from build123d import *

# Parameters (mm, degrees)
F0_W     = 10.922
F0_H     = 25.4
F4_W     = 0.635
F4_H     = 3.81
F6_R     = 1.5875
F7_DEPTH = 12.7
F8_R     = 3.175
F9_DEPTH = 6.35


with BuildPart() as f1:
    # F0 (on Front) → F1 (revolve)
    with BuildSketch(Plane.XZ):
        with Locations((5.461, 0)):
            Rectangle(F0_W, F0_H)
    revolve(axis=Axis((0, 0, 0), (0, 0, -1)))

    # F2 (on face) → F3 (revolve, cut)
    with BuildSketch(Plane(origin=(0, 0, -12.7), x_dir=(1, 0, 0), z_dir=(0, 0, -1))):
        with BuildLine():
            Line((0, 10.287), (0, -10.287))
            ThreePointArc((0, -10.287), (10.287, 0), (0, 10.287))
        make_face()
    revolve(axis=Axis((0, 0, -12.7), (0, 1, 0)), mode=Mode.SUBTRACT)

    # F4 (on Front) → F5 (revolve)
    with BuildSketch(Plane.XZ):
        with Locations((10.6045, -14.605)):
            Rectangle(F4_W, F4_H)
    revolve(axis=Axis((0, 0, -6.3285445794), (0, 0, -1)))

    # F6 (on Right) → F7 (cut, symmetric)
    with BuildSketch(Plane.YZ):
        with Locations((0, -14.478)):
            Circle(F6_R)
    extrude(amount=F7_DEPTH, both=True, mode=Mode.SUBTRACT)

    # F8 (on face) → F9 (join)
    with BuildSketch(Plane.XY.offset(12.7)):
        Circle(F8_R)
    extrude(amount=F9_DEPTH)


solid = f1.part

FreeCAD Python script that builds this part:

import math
import FreeCAD as App
import Part
import Sketcher

V = App.Vector
Q = App.Units.Quantity

doc = App.newDocument("Part")
params = doc.addObject("Spreadsheet::Sheet", "Params")
for row, (alias, value) in enumerate([
    ("sketch1_height", "1 in"),
    ("sketch1_width", "0.43 in"),
    ("revolution_angle", "360 deg"),
    ("sketch2_radius", "0.405 in"),
    ("groove_angle", "360 deg"),
    ("sketch3_height", "0.15 in"),
    ("sketch3_width", "0.025 in"),
    ("revolution2_angle", "360 deg"),
    ("sketch4_diameter", "0.125 in"),
    ("pocket1_length", "1 in"),
    ("sketch5_diameter", "0.25 in"),
    ("pad1_length", "0.25 in"),
], start=1):
    params.set(f"A{row}", alias)
    params.set(f"B{row}", "=" + value)
    params.setAlias(f"B{row}", alias)

body = doc.addObject("PartDesign::Body", "Body")

# Sketch on XZ plane
sketch1 = body.newObject("Sketcher::SketchObject", "Sketch")
sketch1.AttachmentSupport = (doc.getObject("XZ_Plane"), [""])
sketch1.MapMode = "FlatFace"
sketch1.addGeometry(Part.LineSegment(V(0, 13, 0), V(0, -13, 0)), False)
sketch1.addGeometry(Part.LineSegment(V(0, -13, 0), V(11, -13, 0)), False)
sketch1.addGeometry(Part.LineSegment(V(11, -13, 0), V(11, 13, 0)), False)
sketch1.addGeometry(Part.LineSegment(V(11, 13, 0), V(0, 13, 0)), False)
sketch1.addConstraint(Sketcher.Constraint("Coincident", 0, 2, 1, 1))
sketch1.addConstraint(Sketcher.Constraint("Coincident", 1, 2, 2, 1))
sketch1.addConstraint(Sketcher.Constraint("Coincident", 2, 2, 3, 1))
sketch1.addConstraint(Sketcher.Constraint("Coincident", 3, 2, 0, 1))
sketch1.addConstraint(Sketcher.Constraint("Vertical", 0))
sketch1.addConstraint(Sketcher.Constraint("Horizontal", 1))
sketch1.addConstraint(Sketcher.Constraint("Vertical", 2))
sketch1.addConstraint(Sketcher.Constraint("Horizontal", 3))
sketch1.addConstraint(Sketcher.Constraint("Symmetric", 0, 2, 3, 2, -1, 1))
sketch1.addConstraint(Sketcher.Constraint("DistanceY", 0, 2, 0, 1, Q("1 in")))
sketch1.addConstraint(Sketcher.Constraint("DistanceX", 1, 1, 1, 2, Q("0.43 in")))
sketch1.setExpression("Constraints[9]", "Params.sketch1_height")
sketch1.setExpression("Constraints[10]", "Params.sketch1_width")
revolution = body.newObject("PartDesign::Revolution", "Revolution")
revolution.Profile = sketch1
revolution.ReferenceAxis = (sketch1, ["V_Axis"])
revolution.setExpression("Angle", "Params.revolution_angle")

# Sketch on XY plane
sketch2 = body.newObject("Sketcher::SketchObject", "Sketch001")
sketch2.AttachmentSupport = (doc.getObject("XY_Plane"), [""])
sketch2.MapMode = "FlatFace"
sketch2.AttachmentOffset = App.Placement(V(0, 0, -0.5 * 25.4), App.Rotation())
sketch2.addGeometry(Part.LineSegment(V(0, -10, 0), V(0, 10, 0)), False)
sketch2.addGeometry(Part.ArcOfCircle(Part.Circle(V(0, 0, 0), V(0, 0, 1), 10), math.radians(-90), math.radians(90)), False)
sketch2.addConstraint(Sketcher.Constraint("Coincident", 0, 1, 1, 1))
sketch2.addConstraint(Sketcher.Constraint("Coincident", 1, 2, 0, 2))
sketch2.addConstraint(Sketcher.Constraint("Vertical", 0))
sketch2.addConstraint(Sketcher.Constraint("Coincident", 1, 3, -1, 1))
sketch2.addConstraint(Sketcher.Constraint("PointOnObject", 0, 1, -2))
sketch2.addConstraint(Sketcher.Constraint("Radius", 1, Q("0.405 in")))
sketch2.setExpression("Constraints[5]", "Params.sketch2_radius")
groove = body.newObject("PartDesign::Groove", "Groove")
groove.Profile = sketch2
groove.ReferenceAxis = (sketch2, ["V_Axis"])
groove.setExpression("Angle", "Params.groove_angle")

# Sketch on XZ plane
sketch3 = body.newObject("Sketcher::SketchObject", "Sketch002")
sketch3.AttachmentSupport = (doc.getObject("XZ_Plane"), [""])
sketch3.MapMode = "FlatFace"
sketch3.addGeometry(Part.LineSegment(V(10.3, -12.7, 0), V(10.3, -16.5, 0)), False)
sketch3.addGeometry(Part.LineSegment(V(10.3, -16.5, 0), V(10.9, -16.5, 0)), False)
sketch3.addGeometry(Part.LineSegment(V(10.9, -16.5, 0), V(10.9, -12.7, 0)), False)
sketch3.addGeometry(Part.LineSegment(V(10.9, -12.7, 0), V(10.3, -12.7, 0)), False)
sketch3.addConstraint(Sketcher.Constraint("Coincident", 0, 2, 1, 1))
sketch3.addConstraint(Sketcher.Constraint("Coincident", 1, 2, 2, 1))
sketch3.addConstraint(Sketcher.Constraint("Coincident", 2, 2, 3, 1))
sketch3.addConstraint(Sketcher.Constraint("Coincident", 3, 2, 0, 1))
sketch3.addConstraint(Sketcher.Constraint("Vertical", 0))
sketch3.addConstraint(Sketcher.Constraint("Horizontal", 1))
sketch3.addConstraint(Sketcher.Constraint("Vertical", 2))
sketch3.addConstraint(Sketcher.Constraint("Horizontal", 3))
sketch3.addConstraint(Sketcher.Constraint("DistanceY", 0, 2, 0, 1, Q("0.15 in")))
sketch3.addConstraint(Sketcher.Constraint("DistanceY", 2, 2, -1, 1, Q("0.5 in")))
sketch3.addConstraint(Sketcher.Constraint("DistanceX", 1, 1, 1, 2, Q("0.025 in")))
sketch3.addConstraint(Sketcher.Constraint("DistanceX", -1, 1, 1, 2, Q("0.43 in")))
sketch3.setExpression("Constraints[8]", "Params.sketch3_height")
sketch3.setExpression("Constraints[10]", "Params.sketch3_width")
revolution2 = body.newObject("PartDesign::Revolution", "Revolution001")
revolution2.Profile = sketch3
revolution2.ReferenceAxis = (sketch3, ["V_Axis"])
revolution2.setExpression("Angle", "Params.revolution2_angle")

# Sketch on YZ plane
sketch4 = body.newObject("Sketcher::SketchObject", "Sketch003")
sketch4.AttachmentSupport = (doc.getObject("YZ_Plane"), [""])
sketch4.MapMode = "FlatFace"
sketch4.addGeometry(Part.Circle(V(0, -14.5, 0), V(0, 0, 1), 1.6), False)
sketch4.addConstraint(Sketcher.Constraint("PointOnObject", 0, 3, -2))
sketch4.addConstraint(Sketcher.Constraint("Diameter", 0, Q("0.125 in")))
sketch4.addConstraint(Sketcher.Constraint("DistanceY", 0, 3, -1, 1, Q("0.57 in")))
sketch4.setExpression("Constraints[1]", "Params.sketch4_diameter")
pocket1 = body.newObject("PartDesign::Pocket", "Pocket")
pocket1.Profile = sketch4
pocket1.setExpression("Length", "Params.pocket1_length")
pocket1.Midplane = True

# Sketch on XY plane
sketch5 = body.newObject("Sketcher::SketchObject", "Sketch004")
sketch5.AttachmentSupport = (doc.getObject("XY_Plane"), [""])
sketch5.MapMode = "FlatFace"
sketch5.AttachmentOffset = App.Placement(V(0, 0, 0.5 * 25.4), App.Rotation())
sketch5.addGeometry(Part.Circle(V(0, 0, 0), V(0, 0, 1), 3.2), False)
sketch5.addConstraint(Sketcher.Constraint("Coincident", 0, 3, -1, 1))
sketch5.addConstraint(Sketcher.Constraint("Diameter", 0, Q("0.25 in")))
sketch5.setExpression("Constraints[1]", "Params.sketch5_diameter")
pad1 = body.newObject("PartDesign::Pad", "Pad")
pad1.Profile = sketch5
pad1.setExpression("Length", "Params.pad1_length")

doc.recompute()
